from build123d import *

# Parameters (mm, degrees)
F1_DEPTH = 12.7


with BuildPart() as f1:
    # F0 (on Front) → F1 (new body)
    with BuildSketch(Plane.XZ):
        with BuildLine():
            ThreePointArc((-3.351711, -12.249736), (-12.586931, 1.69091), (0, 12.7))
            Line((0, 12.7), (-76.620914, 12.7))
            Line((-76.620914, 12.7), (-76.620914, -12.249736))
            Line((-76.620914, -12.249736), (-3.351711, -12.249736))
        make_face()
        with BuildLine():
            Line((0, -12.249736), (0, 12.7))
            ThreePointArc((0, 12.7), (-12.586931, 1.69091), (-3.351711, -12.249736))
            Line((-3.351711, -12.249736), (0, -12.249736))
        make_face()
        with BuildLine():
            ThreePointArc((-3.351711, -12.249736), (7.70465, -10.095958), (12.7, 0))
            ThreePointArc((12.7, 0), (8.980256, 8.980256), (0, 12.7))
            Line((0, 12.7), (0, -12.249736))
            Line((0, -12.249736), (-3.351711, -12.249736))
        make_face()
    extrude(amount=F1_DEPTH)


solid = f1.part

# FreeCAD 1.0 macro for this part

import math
import FreeCAD as App
import Part
import Sketcher
Q = App.Units.Quantity

doc = App.newDocument("Part")
body = doc.addObject("PartDesign::Body", "Body")

# Sketch on XZ plane
sketch1 = doc.addObject("Sketcher::SketchObject", "Sketch")
body.addObject(sketch1)
sketch1.AttachmentSupport = (doc.XZ_Plane, [""])
sketch1.MapMode = "FlatFace"
sketch1.addGeometry([
    Part.LineSegment(App.Vector(0, 12.7, 0), App.Vector(-76.620914, 12.7, 0)),  # 0
    Part.LineSegment(App.Vector(-76.620914, 12.7, 0), App.Vector(-76.620914, -12.249736, 0)),  # 1
    Part.LineSegment(App.Vector(-76.620914, -12.249736, 0), App.Vector(-3.351711, -12.249736, 0)),  # 2
    Part.ArcOfCircle(Part.Circle(App.Vector(0, 0, 0), App.Vector(0, 0, 1), 12.7), math.radians(-105.302448), math.radians(0)),  # 3
    Part.ArcOfCircle(Part.Circle(App.Vector(0, 0, 0), App.Vector(0, 0, 1), 12.7), math.radians(0.000002), math.radians(89.999998)),  # 4
], False)
sketch1.addConstraint([
    Sketcher.Constraint("Coincident", 0, 2, 1, 1),
    Sketcher.Constraint("Coincident", 1, 2, 2, 1),
    Sketcher.Constraint("Coincident", 2, 2, 3, 1),
    Sketcher.Constraint("Tangent", 3, 2, 4, 1),
    Sketcher.Constraint("Tangent", 4, 2, 0, 1),
    Sketcher.Constraint("Horizontal", 0),
    Sketcher.Constraint("Vertical", 1),
    Sketcher.Constraint("Horizontal", 2),
    Sketcher.Constraint("Coincident", 3, 3, -1, 1),
    Sketcher.Constraint("Equal", 3, 4),
    Sketcher.Constraint("PointOnObject", 3, 2, -1),
    Sketcher.Constraint("Radius", 3, Q("0.5 in")),
    Sketcher.Constraint("DistanceX", 0, 2, 0, 1, 76.620914),
    Sketcher.Constraint("DistanceX", 2, 1, 2, 2, 73.269203),
])
pad1 = doc.addObject("PartDesign::Pad", "Pad")
body.addObject(pad1)
pad1.Profile = sketch1
pad1.Length = Q("0.5 in")

doc.recompute()
